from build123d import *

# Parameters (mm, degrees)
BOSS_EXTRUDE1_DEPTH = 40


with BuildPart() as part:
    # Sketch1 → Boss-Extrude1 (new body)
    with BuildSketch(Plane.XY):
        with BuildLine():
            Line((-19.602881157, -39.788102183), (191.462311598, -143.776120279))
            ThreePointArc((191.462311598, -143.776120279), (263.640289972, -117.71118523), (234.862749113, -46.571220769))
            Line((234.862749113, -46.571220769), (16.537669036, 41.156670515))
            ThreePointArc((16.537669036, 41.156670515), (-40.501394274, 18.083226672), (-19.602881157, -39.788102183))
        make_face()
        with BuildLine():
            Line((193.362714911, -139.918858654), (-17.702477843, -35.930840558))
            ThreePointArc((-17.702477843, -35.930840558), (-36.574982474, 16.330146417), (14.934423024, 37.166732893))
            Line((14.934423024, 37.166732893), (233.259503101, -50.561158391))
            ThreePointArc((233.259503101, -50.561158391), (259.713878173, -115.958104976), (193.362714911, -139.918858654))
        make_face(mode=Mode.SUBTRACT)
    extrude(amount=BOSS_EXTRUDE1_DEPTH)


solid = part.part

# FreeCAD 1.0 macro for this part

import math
import FreeCAD as App
import Part
import Sketcher

doc = App.newDocument("Part")
body = doc.addObject("PartDesign::Body", "Body")

# Sketch on XY plane
sketch1 = doc.addObject("Sketcher::SketchObject", "Sketch")
body.addObject(sketch1)
sketch1.AttachmentSupport = (doc.XY_Plane, [""])
sketch1.MapMode = "FlatFace"
sketch1.addGeometry(Part.LineSegment(App.Vector(-20, -40, 0), App.Vector(191, -144, 0)), False)
sketch1.addGeometry(Part.ArcOfCircle(Part.Circle(App.Vector(215, -96, 0), App.Vector(0, 0, 1), 53), math.radians(-116), math.radians(68)), False)
sketch1.addGeometry(Part.LineSegment(App.Vector(235, -47, 0), App.Vector(17, 41, 0)), False)
sketch1.addGeometry(Part.ArcOfCircle(Part.Circle(App.Vector(0, 0, 0), App.Vector(0, 0, 1), 44), math.radians(68), math.radians(244)), False)
sketch1.addGeometry(Part.ArcOfCircle(Part.Circle(App.Vector(215, -96, 0), App.Vector(0, 0, 1), 49), math.radians(-116), math.radians(68)), False)
sketch1.addGeometry(Part.LineSegment(App.Vector(193, -140, 0), App.Vector(-18, -36, 0)), False)
sketch1.addGeometry(Part.ArcOfCircle(Part.Circle(App.Vector(0, 0, 0), App.Vector(0, 0, 1), 40), math.radians(68), math.radians(244)), False)
sketch1.addGeometry(Part.LineSegment(App.Vector(15, 37, 0), App.Vector(233, -51, 0)), False)
sketch1.addConstraint(Sketcher.Constraint("Tangent", 0, 2, 1, 1))
sketch1.addConstraint(Sketcher.Constraint("Tangent", 1, 2, 2, 1))
sketch1.addConstraint(Sketcher.Constraint("Tangent", 2, 2, 3, 1))
sketch1.addConstraint(Sketcher.Constraint("Tangent", 3, 2, 0, 1))
sketch1.addConstraint(Sketcher.Constraint("Tangent", 4, 1, 5, 1))
sketch1.addConstraint(Sketcher.Constraint("Tangent", 5, 2, 6, 2))
sketch1.addConstraint(Sketcher.Constraint("Tangent", 6, 1, 7, 1))
sketch1.addConstraint(Sketcher.Constraint("Tangent", 7, 2, 4, 2))
sketch1.addConstraint(Sketcher.Constraint("Coincident", 3, 3, -1, 1))
sketch1.addConstraint(Sketcher.Constraint("Coincident", 6, 3, -1, 1))
sketch1.addConstraint(Sketcher.Constraint("Coincident", 4, 3, 1, 3))
sketch1.addConstraint(Sketcher.Constraint("Parallel", 0, 5))
sketch1.addConstraint(Sketcher.Constraint("Radius", 1, 53.265))
sketch1.addConstraint(Sketcher.Constraint("Radius", 3, 44.355))
sketch1.addConstraint(Sketcher.Constraint("Radius", 4, 48.965))
sketch1.addConstraint(Sketcher.Constraint("DistanceY", 0, 2, 1, 2, 97.2049))
sketch1.addConstraint(Sketcher.Constraint("Distance", 0, 235.291359))
pad1 = doc.addObject("PartDesign::Pad", "Pad")
body.addObject(pad1)
pad1.Profile = sketch1
pad1.Length = 40

doc.recompute()
